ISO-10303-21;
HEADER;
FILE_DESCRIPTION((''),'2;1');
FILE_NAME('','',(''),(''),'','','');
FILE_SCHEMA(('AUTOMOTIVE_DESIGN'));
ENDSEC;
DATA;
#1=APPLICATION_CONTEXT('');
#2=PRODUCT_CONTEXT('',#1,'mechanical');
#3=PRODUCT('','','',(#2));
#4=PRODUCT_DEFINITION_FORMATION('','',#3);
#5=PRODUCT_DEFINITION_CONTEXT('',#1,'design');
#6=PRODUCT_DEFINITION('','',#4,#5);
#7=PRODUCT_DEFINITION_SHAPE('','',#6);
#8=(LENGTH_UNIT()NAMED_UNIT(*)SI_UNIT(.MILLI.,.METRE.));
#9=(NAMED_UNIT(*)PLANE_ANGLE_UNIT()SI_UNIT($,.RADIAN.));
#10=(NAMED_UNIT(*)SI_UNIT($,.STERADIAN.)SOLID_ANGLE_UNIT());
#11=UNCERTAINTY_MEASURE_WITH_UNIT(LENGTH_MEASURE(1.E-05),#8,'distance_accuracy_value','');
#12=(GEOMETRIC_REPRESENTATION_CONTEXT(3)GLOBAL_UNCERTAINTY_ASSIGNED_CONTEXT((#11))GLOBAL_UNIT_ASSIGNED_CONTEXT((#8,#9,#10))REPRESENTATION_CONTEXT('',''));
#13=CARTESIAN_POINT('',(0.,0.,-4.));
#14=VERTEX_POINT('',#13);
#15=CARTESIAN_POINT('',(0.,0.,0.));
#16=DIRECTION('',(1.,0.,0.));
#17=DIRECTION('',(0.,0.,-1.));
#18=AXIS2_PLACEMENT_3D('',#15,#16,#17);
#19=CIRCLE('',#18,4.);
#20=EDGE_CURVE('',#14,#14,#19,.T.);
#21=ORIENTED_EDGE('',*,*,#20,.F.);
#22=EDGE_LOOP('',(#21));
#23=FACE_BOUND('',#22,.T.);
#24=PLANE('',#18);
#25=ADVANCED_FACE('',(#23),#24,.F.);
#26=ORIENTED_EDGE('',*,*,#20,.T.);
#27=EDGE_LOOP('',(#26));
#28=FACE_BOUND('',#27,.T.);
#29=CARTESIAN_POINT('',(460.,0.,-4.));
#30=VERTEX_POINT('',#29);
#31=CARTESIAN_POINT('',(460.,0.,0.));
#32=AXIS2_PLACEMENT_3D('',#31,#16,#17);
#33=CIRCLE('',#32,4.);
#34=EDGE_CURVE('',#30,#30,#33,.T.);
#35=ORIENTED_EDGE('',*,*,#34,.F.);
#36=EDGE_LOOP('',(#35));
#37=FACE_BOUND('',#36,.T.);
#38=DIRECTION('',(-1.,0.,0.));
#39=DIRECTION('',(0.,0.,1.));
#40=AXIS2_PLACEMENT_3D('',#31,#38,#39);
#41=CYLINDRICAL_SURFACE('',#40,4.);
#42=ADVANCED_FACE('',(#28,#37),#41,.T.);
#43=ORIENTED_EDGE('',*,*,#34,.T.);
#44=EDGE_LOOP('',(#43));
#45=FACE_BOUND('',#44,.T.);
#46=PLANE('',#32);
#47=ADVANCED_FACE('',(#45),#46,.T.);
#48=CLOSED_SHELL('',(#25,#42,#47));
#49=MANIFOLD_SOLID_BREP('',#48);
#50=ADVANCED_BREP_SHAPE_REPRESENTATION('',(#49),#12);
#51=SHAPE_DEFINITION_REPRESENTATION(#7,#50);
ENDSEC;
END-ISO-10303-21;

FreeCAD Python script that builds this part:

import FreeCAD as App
import Part
import Sketcher
from FreeCAD import Vector
Q = App.Units.Quantity

doc = App.newDocument("Part")
body = doc.addObject("PartDesign::Body", "Body")

sketch1 = body.newObject("Sketcher::SketchObject", "Sketch")
sketch1.AttachmentSupport = (doc.getObject("YZ_Plane"), [""])
sketch1.MapMode = "FlatFace"
sketch1.addGeometry(Part.Circle(Vector(0, 0, 0), Vector(0, 0, 1), 4), False)
sketch1.addConstraint(Sketcher.Constraint("Coincident", 0, 3, -1, 1))
sketch1.addConstraint(Sketcher.Constraint("Diameter", 0, Q("8 mm")))
pad1 = body.newObject("PartDesign::Pad", "Pad")
pad1.Profile = sketch1
pad1.Length = 460

doc.recompute()
